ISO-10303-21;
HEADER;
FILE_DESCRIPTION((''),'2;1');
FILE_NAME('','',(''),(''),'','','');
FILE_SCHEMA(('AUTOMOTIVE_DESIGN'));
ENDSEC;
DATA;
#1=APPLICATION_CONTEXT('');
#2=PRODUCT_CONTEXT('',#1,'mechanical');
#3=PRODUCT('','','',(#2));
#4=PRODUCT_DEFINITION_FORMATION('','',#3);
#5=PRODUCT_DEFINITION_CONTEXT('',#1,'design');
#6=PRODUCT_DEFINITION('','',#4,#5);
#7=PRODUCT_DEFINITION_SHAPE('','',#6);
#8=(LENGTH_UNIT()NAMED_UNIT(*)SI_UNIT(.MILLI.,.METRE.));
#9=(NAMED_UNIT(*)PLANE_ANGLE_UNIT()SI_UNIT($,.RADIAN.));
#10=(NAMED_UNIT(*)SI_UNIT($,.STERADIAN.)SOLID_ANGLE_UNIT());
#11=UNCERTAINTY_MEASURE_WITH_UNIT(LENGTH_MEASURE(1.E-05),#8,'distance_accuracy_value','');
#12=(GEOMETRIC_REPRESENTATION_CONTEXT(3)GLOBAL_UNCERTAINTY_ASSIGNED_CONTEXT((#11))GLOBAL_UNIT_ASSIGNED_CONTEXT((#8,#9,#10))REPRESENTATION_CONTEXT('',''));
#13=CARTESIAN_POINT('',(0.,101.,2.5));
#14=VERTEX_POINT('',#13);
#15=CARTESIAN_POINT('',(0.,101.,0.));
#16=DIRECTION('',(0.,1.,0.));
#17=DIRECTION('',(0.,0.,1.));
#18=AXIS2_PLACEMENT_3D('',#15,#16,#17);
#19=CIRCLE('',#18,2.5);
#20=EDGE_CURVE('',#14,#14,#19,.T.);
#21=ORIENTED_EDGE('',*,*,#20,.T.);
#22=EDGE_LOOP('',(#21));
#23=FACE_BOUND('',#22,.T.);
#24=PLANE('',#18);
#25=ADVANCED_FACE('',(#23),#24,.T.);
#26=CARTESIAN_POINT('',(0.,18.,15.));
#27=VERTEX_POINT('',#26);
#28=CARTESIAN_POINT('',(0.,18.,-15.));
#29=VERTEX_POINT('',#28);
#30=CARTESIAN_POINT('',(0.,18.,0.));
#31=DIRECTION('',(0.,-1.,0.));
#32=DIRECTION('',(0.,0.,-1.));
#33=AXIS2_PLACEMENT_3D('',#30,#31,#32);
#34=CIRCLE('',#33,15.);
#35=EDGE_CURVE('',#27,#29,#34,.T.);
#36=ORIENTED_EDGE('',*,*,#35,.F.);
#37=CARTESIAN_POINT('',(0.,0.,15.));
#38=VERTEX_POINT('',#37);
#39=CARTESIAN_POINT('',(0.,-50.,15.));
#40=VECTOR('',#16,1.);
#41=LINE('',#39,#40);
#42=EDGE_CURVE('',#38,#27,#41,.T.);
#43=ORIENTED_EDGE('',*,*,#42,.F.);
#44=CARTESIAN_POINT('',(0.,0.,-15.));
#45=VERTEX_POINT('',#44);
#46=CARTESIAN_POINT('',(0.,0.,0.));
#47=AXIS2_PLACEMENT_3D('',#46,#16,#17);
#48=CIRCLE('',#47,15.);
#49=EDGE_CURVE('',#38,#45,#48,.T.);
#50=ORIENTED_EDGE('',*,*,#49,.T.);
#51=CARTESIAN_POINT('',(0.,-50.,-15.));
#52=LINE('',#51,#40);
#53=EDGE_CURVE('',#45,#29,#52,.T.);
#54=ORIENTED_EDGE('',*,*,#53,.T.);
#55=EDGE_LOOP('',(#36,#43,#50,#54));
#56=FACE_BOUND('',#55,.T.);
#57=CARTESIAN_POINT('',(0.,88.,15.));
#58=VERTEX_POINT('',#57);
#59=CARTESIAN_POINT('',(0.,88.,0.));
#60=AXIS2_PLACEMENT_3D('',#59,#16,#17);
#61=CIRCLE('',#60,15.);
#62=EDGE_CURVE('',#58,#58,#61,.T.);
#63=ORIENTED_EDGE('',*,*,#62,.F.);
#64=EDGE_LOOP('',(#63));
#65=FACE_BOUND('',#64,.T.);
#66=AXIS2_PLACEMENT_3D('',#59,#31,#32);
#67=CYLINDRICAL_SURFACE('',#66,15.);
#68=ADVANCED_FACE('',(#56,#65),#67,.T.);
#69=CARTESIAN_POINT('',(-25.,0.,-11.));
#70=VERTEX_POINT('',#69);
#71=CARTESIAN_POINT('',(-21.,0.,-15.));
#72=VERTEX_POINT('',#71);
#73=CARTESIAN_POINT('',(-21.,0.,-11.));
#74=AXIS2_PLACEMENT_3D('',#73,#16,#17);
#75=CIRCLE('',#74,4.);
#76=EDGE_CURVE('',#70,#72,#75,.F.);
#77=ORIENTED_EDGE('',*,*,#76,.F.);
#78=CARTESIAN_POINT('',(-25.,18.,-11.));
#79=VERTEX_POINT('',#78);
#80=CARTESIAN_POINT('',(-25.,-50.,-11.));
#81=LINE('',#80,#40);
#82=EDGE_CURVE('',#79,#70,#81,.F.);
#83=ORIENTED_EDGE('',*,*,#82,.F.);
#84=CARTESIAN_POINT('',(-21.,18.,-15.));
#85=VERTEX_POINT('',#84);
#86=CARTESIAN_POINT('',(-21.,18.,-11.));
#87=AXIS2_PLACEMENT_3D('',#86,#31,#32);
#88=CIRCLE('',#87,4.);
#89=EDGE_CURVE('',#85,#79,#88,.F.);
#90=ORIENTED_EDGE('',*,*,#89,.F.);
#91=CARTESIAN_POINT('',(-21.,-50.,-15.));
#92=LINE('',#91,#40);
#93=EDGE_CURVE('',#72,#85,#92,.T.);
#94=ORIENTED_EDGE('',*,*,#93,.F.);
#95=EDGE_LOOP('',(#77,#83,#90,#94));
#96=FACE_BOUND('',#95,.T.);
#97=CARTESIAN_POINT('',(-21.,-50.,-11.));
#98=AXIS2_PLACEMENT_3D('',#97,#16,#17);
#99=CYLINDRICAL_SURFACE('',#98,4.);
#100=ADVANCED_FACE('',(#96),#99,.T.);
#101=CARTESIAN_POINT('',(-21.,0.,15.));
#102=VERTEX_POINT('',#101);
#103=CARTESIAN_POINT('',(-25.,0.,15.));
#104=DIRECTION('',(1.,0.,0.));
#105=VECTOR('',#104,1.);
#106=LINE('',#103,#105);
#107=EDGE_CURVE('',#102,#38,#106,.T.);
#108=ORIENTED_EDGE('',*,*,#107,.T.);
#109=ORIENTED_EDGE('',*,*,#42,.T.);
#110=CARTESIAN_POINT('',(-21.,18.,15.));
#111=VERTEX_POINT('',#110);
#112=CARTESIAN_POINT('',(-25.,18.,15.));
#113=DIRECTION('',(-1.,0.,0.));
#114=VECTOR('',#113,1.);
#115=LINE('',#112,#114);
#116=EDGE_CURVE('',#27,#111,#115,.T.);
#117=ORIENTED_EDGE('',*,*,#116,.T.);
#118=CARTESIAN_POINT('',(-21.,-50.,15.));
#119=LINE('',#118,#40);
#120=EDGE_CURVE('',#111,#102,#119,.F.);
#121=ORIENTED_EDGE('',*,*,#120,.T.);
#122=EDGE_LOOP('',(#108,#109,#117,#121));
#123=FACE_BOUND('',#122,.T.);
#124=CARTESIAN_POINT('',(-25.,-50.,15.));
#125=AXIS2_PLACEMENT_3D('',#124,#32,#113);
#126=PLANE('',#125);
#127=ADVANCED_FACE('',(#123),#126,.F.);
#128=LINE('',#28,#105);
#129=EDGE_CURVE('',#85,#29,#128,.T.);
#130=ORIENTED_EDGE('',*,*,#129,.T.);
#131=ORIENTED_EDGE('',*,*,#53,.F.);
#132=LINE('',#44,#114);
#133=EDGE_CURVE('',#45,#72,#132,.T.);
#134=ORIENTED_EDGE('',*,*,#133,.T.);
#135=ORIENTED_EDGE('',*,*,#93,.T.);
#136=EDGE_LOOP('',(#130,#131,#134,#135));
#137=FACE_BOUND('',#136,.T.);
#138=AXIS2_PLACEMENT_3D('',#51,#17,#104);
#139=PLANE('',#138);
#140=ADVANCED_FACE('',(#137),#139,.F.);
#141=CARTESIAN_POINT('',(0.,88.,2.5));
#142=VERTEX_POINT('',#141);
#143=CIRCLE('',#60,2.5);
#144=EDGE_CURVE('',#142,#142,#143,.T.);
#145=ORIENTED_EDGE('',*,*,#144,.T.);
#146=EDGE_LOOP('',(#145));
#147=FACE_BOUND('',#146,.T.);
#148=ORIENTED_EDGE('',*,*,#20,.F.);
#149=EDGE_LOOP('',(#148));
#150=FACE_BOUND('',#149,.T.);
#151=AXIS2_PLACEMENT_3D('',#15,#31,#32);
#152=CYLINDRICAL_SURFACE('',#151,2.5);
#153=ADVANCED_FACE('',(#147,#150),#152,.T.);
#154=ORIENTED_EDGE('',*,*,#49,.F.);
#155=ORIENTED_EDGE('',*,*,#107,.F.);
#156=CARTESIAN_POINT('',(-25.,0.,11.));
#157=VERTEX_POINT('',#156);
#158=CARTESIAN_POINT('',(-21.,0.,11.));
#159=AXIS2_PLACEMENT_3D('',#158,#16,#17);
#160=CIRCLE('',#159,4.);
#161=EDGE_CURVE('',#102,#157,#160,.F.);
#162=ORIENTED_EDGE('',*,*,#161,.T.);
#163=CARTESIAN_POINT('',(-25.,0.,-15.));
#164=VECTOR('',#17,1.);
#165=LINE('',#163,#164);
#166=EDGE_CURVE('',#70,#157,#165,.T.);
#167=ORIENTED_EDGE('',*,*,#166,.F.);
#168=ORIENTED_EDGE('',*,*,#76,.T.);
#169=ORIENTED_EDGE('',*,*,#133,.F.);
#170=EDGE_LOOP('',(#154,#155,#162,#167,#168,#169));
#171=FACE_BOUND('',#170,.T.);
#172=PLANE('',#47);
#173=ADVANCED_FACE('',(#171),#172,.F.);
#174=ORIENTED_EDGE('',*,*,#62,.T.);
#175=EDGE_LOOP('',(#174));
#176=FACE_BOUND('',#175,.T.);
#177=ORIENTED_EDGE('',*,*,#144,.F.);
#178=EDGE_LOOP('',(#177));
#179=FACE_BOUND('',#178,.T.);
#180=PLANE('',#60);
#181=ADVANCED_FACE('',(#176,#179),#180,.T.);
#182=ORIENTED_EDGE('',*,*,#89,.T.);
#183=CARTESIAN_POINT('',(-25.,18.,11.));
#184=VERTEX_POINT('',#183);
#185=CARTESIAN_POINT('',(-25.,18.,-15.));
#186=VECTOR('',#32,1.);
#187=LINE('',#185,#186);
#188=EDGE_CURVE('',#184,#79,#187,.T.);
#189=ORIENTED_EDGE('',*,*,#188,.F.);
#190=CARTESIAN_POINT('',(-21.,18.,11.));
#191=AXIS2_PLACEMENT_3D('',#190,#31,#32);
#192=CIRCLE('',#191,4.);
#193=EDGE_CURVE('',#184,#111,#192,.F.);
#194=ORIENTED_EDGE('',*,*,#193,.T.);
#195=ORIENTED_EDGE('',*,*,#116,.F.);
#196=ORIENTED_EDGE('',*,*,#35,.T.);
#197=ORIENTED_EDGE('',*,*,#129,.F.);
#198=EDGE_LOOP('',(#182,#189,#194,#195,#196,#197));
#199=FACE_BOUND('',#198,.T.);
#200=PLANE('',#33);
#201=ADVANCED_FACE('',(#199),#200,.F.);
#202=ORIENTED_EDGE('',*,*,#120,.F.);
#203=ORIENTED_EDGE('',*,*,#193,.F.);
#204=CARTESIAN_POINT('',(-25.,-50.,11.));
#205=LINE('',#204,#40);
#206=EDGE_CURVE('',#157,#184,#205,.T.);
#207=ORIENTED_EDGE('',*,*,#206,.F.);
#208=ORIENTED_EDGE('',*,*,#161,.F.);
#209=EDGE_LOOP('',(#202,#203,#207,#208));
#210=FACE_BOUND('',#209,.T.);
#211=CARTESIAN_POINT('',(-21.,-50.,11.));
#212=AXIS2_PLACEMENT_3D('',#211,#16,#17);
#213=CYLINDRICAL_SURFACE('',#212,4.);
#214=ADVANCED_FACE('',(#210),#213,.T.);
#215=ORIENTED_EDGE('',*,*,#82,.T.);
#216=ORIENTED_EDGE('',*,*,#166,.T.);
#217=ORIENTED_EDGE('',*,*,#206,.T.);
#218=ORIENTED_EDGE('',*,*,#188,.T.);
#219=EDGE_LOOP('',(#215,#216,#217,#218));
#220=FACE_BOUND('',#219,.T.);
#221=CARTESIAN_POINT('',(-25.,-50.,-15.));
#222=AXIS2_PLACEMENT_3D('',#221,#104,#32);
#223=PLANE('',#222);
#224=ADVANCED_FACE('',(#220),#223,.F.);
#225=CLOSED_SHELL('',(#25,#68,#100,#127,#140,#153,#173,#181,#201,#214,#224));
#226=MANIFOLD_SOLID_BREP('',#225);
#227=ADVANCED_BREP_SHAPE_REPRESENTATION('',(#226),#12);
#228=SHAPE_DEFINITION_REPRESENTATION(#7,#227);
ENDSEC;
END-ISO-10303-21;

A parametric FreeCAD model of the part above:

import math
import FreeCAD as App
import Part
import Sketcher


def edges_at(feature, points):
    """Names of the edges that pass closest to the given points."""
    edges = feature.Shape.Edges
    near = lambda p: min(range(len(edges)), key=lambda i: edges[i].distToShape(Part.Vertex(*p))[0])
    return sorted({f"Edge{near(p) + 1}" for p in points})

doc = App.newDocument("Part")
body = doc.addObject("PartDesign::Body", "Body")

# Sketch on XZ plane
sketch1 = body.newObject("Sketcher::SketchObject", "Sketch")
sketch1.AttachmentSupport = (doc.getObject("XZ_Plane"), [""])
sketch1.MapMode = "FlatFace"
sketch1.addGeometry(Part.Circle(App.Vector(0, 0, 0), App.Vector(0, 0, 1), 15), False)
sketch1.addConstraint([
    Sketcher.Constraint("Coincident", 0, 3, -1, 1),
    Sketcher.Constraint("Diameter", 0, 30.0),
])
pad1 = body.newObject("PartDesign::Pad", "Pad")
pad1.Profile = sketch1
pad1.Length = 88
pad1.Reversed = True

# Sketch on XZ plane
sketch2 = body.newObject("Sketcher::SketchObject", "Sketch001")
sketch2.AttachmentSupport = (doc.getObject("XZ_Plane"), [""])
sketch2.MapMode = "FlatFace"
sketch2.AttachmentOffset = App.Placement(App.Vector(0, 0, -88), App.Rotation())
sketch2.addGeometry(Part.Circle(App.Vector(0, 0, 0), App.Vector(0, 0, 1), 2.5), False)
sketch2.addConstraint([
    Sketcher.Constraint("Coincident", 0, 3, -1, 1),
    Sketcher.Constraint("Diameter", 0, 5.0),
])
pad2 = body.newObject("PartDesign::Pad", "Pad001")
pad2.Profile = sketch2
pad2.Length = 13
pad2.Reversed = True

# Sketch on XZ plane
sketch3 = body.newObject("Sketcher::SketchObject", "Sketch002")
sketch3.AttachmentSupport = (doc.getObject("XZ_Plane"), [""])
sketch3.MapMode = "FlatFace"
sketch3.AttachmentOffset = App.Placement(App.Vector(0, 0, -18), App.Rotation())
sketch3.addGeometry([
    Part.LineSegment(App.Vector(-25, -15, 0), App.Vector(0, -15, 0)),
    Part.ArcOfCircle(Part.Circle(App.Vector(0, 0, 0), App.Vector(0, 0, 1), 15), math.radians(-90), math.radians(90)),
    Part.LineSegment(App.Vector(0, 15, 0), App.Vector(-25, 15, 0)),
    Part.LineSegment(App.Vector(-25, 15, 0), App.Vector(-25, -15, 0)),
], False)
sketch3.addConstraint([
    Sketcher.Constraint("Tangent", 0, 2, 1, 1),
    Sketcher.Constraint("Tangent", 1, 2, 2, 1),
    Sketcher.Constraint("Coincident", 2, 2, 3, 1),
    Sketcher.Constraint("Coincident", 3, 2, 0, 1),
    Sketcher.Constraint("Horizontal", 0),
    Sketcher.Constraint("Horizontal", 2),
    Sketcher.Constraint("Vertical", 3),
    Sketcher.Constraint("Coincident", 1, 3, -1, 1),
    Sketcher.Constraint("Radius", 1, 15.0),
    Sketcher.Constraint("DistanceX", 0, 1, 0, 2, 25.0),
])
pad3 = body.newObject("PartDesign::Pad", "Pad002")
pad3.Profile = sketch3
pad3.Length = 18
doc.recompute()

fillet = body.newObject("PartDesign::Fillet", "Fillet")
fillet.Base = (pad3, edges_at(pad3, [(-25, 9, -15), (-25, 9, 15)]))
fillet.Radius = 4

doc.recompute()
